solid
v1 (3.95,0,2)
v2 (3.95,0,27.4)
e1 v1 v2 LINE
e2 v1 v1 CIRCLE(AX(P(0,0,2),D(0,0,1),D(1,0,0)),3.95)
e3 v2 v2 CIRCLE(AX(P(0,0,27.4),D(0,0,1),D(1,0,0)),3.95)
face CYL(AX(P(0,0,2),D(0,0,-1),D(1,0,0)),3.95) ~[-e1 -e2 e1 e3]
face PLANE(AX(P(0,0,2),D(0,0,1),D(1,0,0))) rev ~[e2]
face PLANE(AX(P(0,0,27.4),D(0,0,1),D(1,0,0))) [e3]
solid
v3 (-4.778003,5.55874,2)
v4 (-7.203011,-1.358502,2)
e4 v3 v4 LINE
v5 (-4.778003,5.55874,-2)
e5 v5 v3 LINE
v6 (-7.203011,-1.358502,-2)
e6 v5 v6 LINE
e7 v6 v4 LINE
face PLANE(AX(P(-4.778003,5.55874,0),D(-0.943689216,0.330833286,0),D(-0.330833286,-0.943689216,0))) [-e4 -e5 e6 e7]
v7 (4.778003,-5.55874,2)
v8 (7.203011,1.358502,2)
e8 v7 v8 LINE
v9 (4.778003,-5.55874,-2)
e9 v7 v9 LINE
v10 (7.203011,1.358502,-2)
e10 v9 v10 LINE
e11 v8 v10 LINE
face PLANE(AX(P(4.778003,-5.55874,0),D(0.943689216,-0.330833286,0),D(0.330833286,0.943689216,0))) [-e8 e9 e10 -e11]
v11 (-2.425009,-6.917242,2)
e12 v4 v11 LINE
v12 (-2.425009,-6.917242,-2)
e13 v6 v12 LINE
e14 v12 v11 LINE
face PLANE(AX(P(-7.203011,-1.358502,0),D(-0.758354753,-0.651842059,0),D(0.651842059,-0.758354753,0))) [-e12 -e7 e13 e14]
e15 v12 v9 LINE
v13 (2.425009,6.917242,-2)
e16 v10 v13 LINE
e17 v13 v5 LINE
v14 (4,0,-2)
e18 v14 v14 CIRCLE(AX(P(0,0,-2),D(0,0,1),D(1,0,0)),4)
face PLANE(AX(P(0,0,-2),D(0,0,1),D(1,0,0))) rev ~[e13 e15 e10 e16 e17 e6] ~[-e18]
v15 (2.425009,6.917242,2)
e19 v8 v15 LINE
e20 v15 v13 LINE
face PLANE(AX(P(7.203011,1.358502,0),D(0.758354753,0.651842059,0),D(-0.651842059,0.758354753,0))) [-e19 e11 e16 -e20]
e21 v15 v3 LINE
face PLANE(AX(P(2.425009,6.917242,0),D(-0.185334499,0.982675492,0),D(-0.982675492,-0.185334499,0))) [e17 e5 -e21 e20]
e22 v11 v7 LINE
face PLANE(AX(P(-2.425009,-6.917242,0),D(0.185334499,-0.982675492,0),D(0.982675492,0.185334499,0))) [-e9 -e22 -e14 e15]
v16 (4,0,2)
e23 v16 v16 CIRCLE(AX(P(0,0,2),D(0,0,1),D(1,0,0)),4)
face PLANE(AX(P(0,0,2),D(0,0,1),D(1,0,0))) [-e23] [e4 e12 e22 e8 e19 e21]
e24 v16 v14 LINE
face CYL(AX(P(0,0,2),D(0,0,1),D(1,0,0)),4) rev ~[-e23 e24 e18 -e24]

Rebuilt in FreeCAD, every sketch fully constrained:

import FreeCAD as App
import Part
import Sketcher

V = App.Vector
Q = App.Units.Quantity


def add_polygon(sketch, points):
    """Adds a closed chain of lines whose ends are joined by coincident constraints."""
    first, n = sketch.GeometryCount, len(points)
    for a, b in zip(points, points[1:] + points[:1]):
        sketch.addGeometry(Part.LineSegment(App.Vector(*a, 0), App.Vector(*b, 0)), False)
    for i in range(n):
        sketch.addConstraint(Sketcher.Constraint("Coincident", first + i, 2, first + (i + 1) % n, 1))

doc = App.newDocument("Part")
body = doc.addObject("PartDesign::Body", "Body")

# Sketch on XY plane
sketch1 = body.newObject("Sketcher::SketchObject", "Sketch")
sketch1.AttachmentSupport = (doc.getObject("XY_Plane"), [""])
sketch1.MapMode = "FlatFace"
add_polygon(sketch1, [(2, 7), (-5, 6), (-7, -1), (-2, -7), (5, -6), (7, 1)])  # lines 0-5
sketch1.addConstraint([
    Sketcher.Constraint("Symmetric", 0, 2, 3, 2, -1, 1),
    Sketcher.Constraint("Symmetric", 1, 2, 4, 2, -1, 1),
    Sketcher.Constraint("Symmetric", 2, 2, 5, 2, -1, 1),
    Sketcher.Constraint("Equal", 0, 1),
    Sketcher.Constraint("Equal", 1, 2),
    Sketcher.Constraint("Distance", 0, Q("7.330001 mm")),
    Sketcher.Constraint("DistanceY", 2, 2, 3, 2, Q("1.358502 mm")),
    Sketcher.Constraint("DistanceY", -1, 1, 0, 2, Q("5.55874 mm")),
    Sketcher.Constraint("DistanceX", 1, 2, -1, 1, Q("7.203011 mm")),
])
pad1 = body.newObject("PartDesign::Pad", "Pad")
pad1.Profile = sketch1
pad1.Length = 4
pad1.Midplane = True

# Sketch on XY plane
sketch2 = body.newObject("Sketcher::SketchObject", "Sketch001")
sketch2.AttachmentSupport = (doc.getObject("XY_Plane"), [""])
sketch2.MapMode = "FlatFace"
sketch2.AttachmentOffset = App.Placement(V(0, 0, 2), App.Rotation())
sketch2.addGeometry(Part.Circle(V(0, 0, 0), V(0, 0, 1), 4), False)
sketch2.addConstraint([
    Sketcher.Constraint("Coincident", 0, 3, -1, 1),
    Sketcher.Constraint("Diameter", 0, Q("8 mm")),
])
pocket1 = body.newObject("PartDesign::Pocket", "Pocket")
pocket1.Profile = sketch2
pocket1.Length = 25
body2 = doc.addObject("PartDesign::Body", "Body001")

# Sketch on XY plane
sketch3 = body2.newObject("Sketcher::SketchObject", "Sketch002")
sketch3.AttachmentSupport = (doc.getObject("XY_Plane001"), [""])
sketch3.MapMode = "FlatFace"
sketch3.AttachmentOffset = App.Placement(V(0, 0, 2), App.Rotation())
sketch3.addGeometry(Part.Circle(V(0, 0, 0), V(0, 0, 1), 4), False)
sketch3.addConstraint([
    Sketcher.Constraint("Coincident", 0, 3, -1, 1),
    Sketcher.Constraint("Diameter", 0, Q("7.9 mm")),
])
pad2 = body2.newObject("PartDesign::Pad", "Pad001")
pad2.Profile = sketch3
pad2.Length = 25.4

doc.recompute()
